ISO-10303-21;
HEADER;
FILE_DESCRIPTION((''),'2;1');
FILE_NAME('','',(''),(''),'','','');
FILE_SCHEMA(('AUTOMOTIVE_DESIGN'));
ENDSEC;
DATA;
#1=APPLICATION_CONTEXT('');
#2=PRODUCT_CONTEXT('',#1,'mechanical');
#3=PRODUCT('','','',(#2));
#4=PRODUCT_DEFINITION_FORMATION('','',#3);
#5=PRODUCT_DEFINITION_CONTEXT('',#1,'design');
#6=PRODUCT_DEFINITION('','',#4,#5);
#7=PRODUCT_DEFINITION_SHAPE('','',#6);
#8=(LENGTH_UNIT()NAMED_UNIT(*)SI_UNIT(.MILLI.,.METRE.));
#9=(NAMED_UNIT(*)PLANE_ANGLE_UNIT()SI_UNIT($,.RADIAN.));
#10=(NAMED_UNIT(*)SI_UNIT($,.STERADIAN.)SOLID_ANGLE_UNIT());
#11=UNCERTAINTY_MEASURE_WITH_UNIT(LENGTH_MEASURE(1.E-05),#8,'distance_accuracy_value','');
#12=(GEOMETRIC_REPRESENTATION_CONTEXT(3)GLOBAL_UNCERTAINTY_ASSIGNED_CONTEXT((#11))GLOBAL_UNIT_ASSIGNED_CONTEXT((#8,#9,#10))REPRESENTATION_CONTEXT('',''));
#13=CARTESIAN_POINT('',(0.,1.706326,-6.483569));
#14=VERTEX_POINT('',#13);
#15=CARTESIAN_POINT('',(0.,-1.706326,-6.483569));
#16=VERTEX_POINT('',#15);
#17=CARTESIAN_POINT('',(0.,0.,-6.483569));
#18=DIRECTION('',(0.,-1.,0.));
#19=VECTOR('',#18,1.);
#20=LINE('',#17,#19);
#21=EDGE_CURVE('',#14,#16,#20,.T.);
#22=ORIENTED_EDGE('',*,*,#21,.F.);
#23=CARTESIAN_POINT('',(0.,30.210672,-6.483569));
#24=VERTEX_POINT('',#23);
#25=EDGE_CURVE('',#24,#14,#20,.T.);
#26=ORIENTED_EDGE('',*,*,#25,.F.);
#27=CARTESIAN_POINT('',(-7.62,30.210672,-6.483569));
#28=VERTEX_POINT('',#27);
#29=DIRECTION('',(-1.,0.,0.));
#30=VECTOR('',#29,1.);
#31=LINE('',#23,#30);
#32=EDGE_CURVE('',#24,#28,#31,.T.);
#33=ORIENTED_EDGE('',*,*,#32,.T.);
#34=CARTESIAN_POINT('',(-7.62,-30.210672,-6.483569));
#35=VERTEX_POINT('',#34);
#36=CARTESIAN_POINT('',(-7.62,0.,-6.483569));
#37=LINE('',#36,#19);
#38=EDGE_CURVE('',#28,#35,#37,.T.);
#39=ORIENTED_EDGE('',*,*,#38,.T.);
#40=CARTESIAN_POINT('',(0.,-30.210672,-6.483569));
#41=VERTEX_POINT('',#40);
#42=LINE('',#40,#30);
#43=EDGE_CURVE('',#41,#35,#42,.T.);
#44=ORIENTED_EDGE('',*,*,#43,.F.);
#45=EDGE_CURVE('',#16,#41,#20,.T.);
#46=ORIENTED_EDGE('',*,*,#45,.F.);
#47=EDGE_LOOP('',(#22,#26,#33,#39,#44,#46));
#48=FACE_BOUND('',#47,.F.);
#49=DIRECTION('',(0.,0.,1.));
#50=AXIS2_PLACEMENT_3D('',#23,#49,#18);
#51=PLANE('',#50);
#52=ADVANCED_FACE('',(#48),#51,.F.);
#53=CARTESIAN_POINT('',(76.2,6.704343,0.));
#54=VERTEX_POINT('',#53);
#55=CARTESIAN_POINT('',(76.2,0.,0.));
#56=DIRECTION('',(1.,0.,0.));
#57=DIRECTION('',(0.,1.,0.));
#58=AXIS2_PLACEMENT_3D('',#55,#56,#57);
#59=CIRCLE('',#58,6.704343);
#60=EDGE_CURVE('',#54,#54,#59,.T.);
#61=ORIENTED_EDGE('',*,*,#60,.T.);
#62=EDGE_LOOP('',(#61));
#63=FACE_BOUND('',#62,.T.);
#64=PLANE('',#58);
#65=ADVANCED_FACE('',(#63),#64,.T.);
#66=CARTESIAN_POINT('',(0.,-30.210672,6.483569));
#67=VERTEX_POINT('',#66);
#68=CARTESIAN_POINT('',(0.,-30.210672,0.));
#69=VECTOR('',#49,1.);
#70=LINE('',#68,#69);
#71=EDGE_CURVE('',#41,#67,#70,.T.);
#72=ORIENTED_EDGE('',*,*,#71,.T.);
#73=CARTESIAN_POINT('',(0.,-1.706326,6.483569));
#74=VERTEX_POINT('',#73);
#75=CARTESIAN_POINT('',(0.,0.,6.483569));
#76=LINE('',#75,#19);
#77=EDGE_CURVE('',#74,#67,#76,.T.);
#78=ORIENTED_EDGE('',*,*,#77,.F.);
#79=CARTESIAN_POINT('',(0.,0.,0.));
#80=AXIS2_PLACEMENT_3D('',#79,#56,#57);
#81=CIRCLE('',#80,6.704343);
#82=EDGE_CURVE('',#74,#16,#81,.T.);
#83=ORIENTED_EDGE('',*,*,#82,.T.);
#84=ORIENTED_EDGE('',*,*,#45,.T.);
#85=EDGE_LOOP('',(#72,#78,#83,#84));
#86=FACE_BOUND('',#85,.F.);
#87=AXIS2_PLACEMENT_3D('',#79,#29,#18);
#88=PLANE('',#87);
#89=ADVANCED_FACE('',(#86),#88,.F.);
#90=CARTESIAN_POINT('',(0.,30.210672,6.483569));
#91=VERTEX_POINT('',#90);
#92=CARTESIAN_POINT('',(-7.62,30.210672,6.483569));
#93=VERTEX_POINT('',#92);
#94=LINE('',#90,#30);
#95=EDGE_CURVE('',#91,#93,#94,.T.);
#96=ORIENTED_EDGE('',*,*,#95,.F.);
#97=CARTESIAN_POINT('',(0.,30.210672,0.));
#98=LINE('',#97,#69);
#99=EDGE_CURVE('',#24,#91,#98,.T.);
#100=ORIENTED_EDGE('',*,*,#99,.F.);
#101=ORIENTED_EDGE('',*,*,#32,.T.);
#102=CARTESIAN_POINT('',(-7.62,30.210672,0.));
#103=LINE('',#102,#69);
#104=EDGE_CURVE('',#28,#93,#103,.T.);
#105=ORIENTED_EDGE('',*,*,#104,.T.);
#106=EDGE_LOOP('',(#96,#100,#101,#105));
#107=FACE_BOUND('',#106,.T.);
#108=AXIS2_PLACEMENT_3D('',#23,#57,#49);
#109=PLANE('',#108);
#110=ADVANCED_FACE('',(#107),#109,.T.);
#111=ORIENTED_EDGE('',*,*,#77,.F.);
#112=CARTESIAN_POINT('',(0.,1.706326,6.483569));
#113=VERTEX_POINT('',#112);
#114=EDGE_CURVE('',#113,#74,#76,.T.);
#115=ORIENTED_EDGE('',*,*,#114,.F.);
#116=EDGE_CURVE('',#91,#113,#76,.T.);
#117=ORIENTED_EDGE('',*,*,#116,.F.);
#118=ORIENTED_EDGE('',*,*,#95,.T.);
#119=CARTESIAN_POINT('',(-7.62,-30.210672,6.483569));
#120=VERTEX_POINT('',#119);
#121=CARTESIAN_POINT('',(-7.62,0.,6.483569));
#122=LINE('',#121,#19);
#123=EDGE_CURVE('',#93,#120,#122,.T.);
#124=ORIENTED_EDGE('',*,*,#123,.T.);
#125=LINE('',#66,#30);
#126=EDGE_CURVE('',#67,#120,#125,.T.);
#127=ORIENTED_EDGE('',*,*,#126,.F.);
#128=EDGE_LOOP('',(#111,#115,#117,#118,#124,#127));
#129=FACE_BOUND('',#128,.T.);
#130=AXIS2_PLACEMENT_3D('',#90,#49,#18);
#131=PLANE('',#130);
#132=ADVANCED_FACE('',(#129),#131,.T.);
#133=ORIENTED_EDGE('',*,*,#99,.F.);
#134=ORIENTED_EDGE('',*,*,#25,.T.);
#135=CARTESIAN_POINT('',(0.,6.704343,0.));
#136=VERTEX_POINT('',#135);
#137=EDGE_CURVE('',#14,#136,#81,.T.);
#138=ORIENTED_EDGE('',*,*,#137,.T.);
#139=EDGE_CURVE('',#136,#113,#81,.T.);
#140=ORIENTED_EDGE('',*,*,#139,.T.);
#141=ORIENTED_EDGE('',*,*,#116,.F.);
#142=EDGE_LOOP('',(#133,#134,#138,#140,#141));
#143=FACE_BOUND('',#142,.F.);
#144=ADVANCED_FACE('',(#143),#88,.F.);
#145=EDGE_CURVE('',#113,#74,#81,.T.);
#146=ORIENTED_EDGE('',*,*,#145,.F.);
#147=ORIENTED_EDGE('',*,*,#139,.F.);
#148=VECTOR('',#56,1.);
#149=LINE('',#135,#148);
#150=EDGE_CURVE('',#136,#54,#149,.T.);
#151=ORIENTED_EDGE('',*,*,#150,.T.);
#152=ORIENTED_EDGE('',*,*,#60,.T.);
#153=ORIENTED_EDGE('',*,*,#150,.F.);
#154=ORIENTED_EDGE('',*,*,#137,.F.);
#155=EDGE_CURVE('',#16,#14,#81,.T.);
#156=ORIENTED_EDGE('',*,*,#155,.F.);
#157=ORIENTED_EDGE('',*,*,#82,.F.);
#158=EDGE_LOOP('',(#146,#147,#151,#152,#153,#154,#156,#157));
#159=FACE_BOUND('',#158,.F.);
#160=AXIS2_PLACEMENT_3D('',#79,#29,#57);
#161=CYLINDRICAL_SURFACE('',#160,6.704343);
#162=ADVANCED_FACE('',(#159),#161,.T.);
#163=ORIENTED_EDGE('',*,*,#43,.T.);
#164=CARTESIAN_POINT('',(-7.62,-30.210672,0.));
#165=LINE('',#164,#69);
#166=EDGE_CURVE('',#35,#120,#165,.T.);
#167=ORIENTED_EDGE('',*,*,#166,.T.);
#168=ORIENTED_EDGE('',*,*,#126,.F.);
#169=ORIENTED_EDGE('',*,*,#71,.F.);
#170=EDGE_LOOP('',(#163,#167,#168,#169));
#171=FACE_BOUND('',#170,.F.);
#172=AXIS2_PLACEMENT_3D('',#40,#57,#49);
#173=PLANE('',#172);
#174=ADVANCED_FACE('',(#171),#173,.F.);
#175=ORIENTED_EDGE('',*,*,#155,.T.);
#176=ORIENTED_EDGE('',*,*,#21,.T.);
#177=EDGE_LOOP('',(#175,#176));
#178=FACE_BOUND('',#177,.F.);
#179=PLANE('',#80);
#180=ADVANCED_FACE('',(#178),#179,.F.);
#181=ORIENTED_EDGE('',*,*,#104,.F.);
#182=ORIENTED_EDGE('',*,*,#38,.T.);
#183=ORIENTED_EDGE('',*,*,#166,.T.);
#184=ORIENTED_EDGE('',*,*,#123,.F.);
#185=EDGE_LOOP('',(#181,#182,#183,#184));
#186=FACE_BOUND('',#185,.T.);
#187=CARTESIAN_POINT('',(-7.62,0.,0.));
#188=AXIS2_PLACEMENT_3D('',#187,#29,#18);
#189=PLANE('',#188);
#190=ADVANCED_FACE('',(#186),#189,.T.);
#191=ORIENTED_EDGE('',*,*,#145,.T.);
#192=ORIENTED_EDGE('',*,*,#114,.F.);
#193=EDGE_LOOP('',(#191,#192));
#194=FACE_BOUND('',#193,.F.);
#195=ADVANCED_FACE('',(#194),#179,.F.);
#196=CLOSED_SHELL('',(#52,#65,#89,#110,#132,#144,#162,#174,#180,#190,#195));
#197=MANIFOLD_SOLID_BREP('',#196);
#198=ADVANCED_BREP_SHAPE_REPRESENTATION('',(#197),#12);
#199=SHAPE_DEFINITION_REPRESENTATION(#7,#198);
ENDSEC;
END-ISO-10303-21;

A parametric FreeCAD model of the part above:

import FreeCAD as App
import Part
import Sketcher
from FreeCAD import Vector
Q = App.Units.Quantity

doc = App.newDocument("Part")
body = doc.addObject("PartDesign::Body", "Body")

sketch1 = body.newObject("Sketcher::SketchObject", "Sketch")
sketch1.AttachmentSupport = (doc.getObject("YZ_Plane"), [""])
sketch1.MapMode = "FlatFace"
sketch1.addGeometry(Part.Circle(Vector(0, 0, 0), Vector(0, 0, 1), 6.704343), False)
sketch1.addConstraint([
    Sketcher.Constraint("Coincident", 0, 3, -1, 1),
    Sketcher.Constraint("Diameter", 0, 13.408686),
])
pad1 = body.newObject("PartDesign::Pad", "Pad")
pad1.Profile = sketch1
pad1.Length = Q("3 in")

sketch2 = body.newObject("Sketcher::SketchObject", "Sketch001")
sketch2.AttachmentSupport = (doc.getObject("YZ_Plane"), [""])
sketch2.MapMode = "FlatFace"
sketch2.addGeometry([
    Part.LineSegment(Vector(30.210672, 6.483569, 0), Vector(30.210672, -6.483569, 0)),
    Part.LineSegment(Vector(30.210672, -6.483569, 0), Vector(-30.210672, -6.483569, 0)),
    Part.LineSegment(Vector(-30.210672, -6.483569, 0), Vector(-30.210672, 6.483569, 0)),
    Part.LineSegment(Vector(-30.210672, 6.483569, 0), Vector(30.210672, 6.483569, 0)),
], False)
sketch2.addConstraint([
    Sketcher.Constraint("Coincident", 0, 2, 1, 1),
    Sketcher.Constraint("Coincident", 1, 2, 2, 1),
    Sketcher.Constraint("Coincident", 2, 2, 3, 1),
    Sketcher.Constraint("Coincident", 3, 2, 0, 1),
    Sketcher.Constraint("Vertical", 0),
    Sketcher.Constraint("Horizontal", 1),
    Sketcher.Constraint("Vertical", 2),
    Sketcher.Constraint("Horizontal", 3),
    Sketcher.Constraint("Symmetric", 0, 2, 2, 2, -1, 1),
    Sketcher.Constraint("DistanceX", 1, 2, 1, 1, 60.421344),
    Sketcher.Constraint("DistanceY", 0, 2, 0, 1, 12.967138),
])
pad2 = body.newObject("PartDesign::Pad", "Pad001")
pad2.Profile = sketch2
pad2.Length = Q("0.3 in")
pad2.Reversed = True

doc.recompute()
